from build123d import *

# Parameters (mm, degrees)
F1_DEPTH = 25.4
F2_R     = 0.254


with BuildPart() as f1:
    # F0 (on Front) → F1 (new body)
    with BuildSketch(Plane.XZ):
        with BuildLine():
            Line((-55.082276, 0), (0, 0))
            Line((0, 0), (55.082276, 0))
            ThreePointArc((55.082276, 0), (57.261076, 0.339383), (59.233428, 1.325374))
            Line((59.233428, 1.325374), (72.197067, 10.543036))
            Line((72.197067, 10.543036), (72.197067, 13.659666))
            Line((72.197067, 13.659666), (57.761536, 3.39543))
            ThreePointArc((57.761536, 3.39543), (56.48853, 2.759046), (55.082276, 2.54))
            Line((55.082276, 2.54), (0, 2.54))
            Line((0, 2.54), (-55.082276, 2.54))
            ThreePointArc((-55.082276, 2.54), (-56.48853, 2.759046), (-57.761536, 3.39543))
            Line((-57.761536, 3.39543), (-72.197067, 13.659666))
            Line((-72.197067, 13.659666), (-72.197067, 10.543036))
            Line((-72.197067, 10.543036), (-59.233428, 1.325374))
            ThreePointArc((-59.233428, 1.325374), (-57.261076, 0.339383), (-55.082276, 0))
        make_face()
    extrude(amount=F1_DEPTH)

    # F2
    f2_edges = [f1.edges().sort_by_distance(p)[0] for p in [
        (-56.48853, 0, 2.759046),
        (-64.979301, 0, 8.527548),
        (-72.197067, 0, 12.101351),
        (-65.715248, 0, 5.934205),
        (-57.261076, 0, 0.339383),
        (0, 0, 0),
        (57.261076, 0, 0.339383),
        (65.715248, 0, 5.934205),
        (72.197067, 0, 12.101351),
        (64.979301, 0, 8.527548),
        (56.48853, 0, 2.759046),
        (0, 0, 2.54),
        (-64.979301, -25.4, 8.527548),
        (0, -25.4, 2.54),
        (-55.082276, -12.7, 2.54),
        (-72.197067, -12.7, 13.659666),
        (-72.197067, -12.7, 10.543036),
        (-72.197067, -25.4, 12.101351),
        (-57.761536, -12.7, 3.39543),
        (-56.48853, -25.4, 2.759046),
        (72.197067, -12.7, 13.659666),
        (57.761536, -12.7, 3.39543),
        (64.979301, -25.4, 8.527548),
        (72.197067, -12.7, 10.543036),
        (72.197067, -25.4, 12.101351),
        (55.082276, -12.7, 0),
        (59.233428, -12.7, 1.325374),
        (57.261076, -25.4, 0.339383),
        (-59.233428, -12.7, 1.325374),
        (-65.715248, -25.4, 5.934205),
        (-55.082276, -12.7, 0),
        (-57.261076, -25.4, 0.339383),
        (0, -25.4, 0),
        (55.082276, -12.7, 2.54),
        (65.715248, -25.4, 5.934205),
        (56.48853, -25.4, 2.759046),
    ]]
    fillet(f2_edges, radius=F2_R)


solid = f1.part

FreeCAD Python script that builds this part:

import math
import FreeCAD as App
import Part
import Sketcher

V = App.Vector
Q = App.Units.Quantity

doc = App.newDocument("Part")
body = doc.addObject("PartDesign::Body", "Body")

# Sketch on XZ plane
sketch1 = body.newObject("Sketcher::SketchObject", "Sketch")
sketch1.AttachmentSupport = (doc.getObject("XZ_Plane"), [""])
sketch1.MapMode = "FlatFace"
sketch1.addGeometry([
    Part.LineSegment(V(-55.082276, 0, 0), V(55.082276, 0, 0)),  # 0
    Part.ArcOfCircle(Part.Circle(V(55.082275, 7.16352, 0), V(0, 0, 1), 7.16352), math.radians(-89.999994), math.radians(-54.585666)),  # 1
    Part.LineSegment(V(59.233428, 1.325374, 0), V(72.197067, 10.543036, 0)),  # 2
    Part.LineSegment(V(72.197067, 10.543036, 0), V(72.197067, 13.659666, 0)),  # 3
    Part.LineSegment(V(72.197067, 13.659666, 0), V(57.761536, 3.39543, 0)),  # 4
    Part.ArcOfCircle(Part.Circle(V(55.082279, 7.16351, 0), V(0, 0, 1), 4.62351), math.radians(-90.000039), math.radians(-54.585636)),  # 5
    Part.LineSegment(V(55.082276, 2.54, 0), V(-55.082276, 2.54, 0)),  # 6
    Part.ArcOfCircle(Part.Circle(V(-55.082279, 7.16351, 0), V(0, 0, 1), 4.62351), math.radians(-125.414364), math.radians(-89.999961)),  # 7
    Part.LineSegment(V(-57.761536, 3.39543, 0), V(-72.197067, 13.659666, 0)),  # 8
    Part.LineSegment(V(-72.197067, 13.659666, 0), V(-72.197067, 10.543036, 0)),  # 9
    Part.LineSegment(V(-72.197067, 10.543036, 0), V(-59.233428, 1.325374, 0)),  # 10
    Part.ArcOfCircle(Part.Circle(V(-55.082275, 7.16352, 0), V(0, 0, 1), 7.16352), math.radians(-125.414334), math.radians(-90.000006)),  # 11
], False)
sketch1.addConstraint([
    Sketcher.Constraint("Coincident", 0, 2, 1, 1),
    Sketcher.Constraint("Coincident", 1, 2, 2, 1),
    Sketcher.Constraint("Coincident", 2, 2, 3, 1),
    Sketcher.Constraint("Coincident", 3, 2, 4, 1),
    Sketcher.Constraint("Coincident", 4, 2, 5, 2),
    Sketcher.Constraint("Coincident", 5, 1, 6, 1),
    Sketcher.Constraint("Coincident", 6, 2, 7, 2),
    Sketcher.Constraint("Coincident", 7, 1, 8, 1),
    Sketcher.Constraint("Coincident", 8, 2, 9, 1),
    Sketcher.Constraint("Coincident", 9, 2, 10, 1),
    Sketcher.Constraint("Coincident", 10, 2, 11, 1),
    Sketcher.Constraint("Coincident", 11, 2, 0, 1),
    Sketcher.Constraint("Horizontal", 0),
    Sketcher.Constraint("Vertical", 3),
    Sketcher.Constraint("Horizontal", 6),
    Sketcher.Constraint("Vertical", 9),
    Sketcher.Constraint("PointOnObject", 0, 2, -1),
    Sketcher.Constraint("DistanceY", -1, 1, 5, 1, Q("0.1 in")),
    Sketcher.Constraint("Radius", 1, Q("7.16352 mm")),
    Sketcher.Constraint("Radius", 5, Q("4.62351 mm")),
    Sketcher.Constraint("Radius", 7, Q("4.62351 mm")),
    Sketcher.Constraint("Radius", 11, Q("7.16352 mm")),
    Sketcher.Constraint("DistanceY", 1, 2, 2, 2, Q("0.3629001 in")),
    Sketcher.Constraint("DistanceY", 10, 2, 9, 2, Q("0.3629001 in")),
    Sketcher.Constraint("DistanceX", 0, 1, 0, 2, Q("110.164552 mm")),
    Sketcher.Constraint("DistanceX", 6, 2, 6, 1, Q("110.164552 mm")),
    Sketcher.Constraint("DistanceY", 3, 1, 3, 2, Q("3.11663 mm")),
    Sketcher.Constraint("DistanceY", 9, 2, 9, 1, Q("3.11663 mm")),
    Sketcher.Constraint("Distance", 2, Q("15.906641 mm")),
    Sketcher.Constraint("Distance", 4, Q("17.712682 mm")),
    Sketcher.Constraint("Distance", 8, Q("17.712682 mm")),
    Sketcher.Constraint("Distance", 10, Q("15.906641 mm")),
    Sketcher.Constraint("DistanceX", -1, 1, 5, 3, Q("55.082279 mm")),
    Sketcher.Constraint("DistanceX", 7, 3, -1, 1, Q("55.082279 mm")),
    Sketcher.Constraint("DistanceX", -1, 1, 1, 2, Q("59.233428 mm")),
    Sketcher.Constraint("DistanceY", -1, 1, 4, 2, Q("3.39543 mm")),
    Sketcher.Constraint("DistanceY", -1, 1, 7, 1, Q("3.39543 mm")),
    Sketcher.Constraint("DistanceX", 10, 2, -1, 1, Q("59.233428 mm")),
    Sketcher.Constraint("DistanceX", 11, 3, 0, 2, Q("110.164551 mm")),
    Sketcher.Constraint("DistanceX", 5, 1, 4, 2, Q("2.67926 mm")),
])
pad1 = body.newObject("PartDesign::Pad", "Pad")
pad1.Profile = sketch1
pad1.Length = Q("1 in")
doc.recompute()

fillet = body.newObject("PartDesign::Fillet", "Fillet")
fillet.Base = (pad1, ["Edge1"])
fillet.UseAllEdges = True
fillet.Radius = Q("0.01 in")

doc.recompute()
